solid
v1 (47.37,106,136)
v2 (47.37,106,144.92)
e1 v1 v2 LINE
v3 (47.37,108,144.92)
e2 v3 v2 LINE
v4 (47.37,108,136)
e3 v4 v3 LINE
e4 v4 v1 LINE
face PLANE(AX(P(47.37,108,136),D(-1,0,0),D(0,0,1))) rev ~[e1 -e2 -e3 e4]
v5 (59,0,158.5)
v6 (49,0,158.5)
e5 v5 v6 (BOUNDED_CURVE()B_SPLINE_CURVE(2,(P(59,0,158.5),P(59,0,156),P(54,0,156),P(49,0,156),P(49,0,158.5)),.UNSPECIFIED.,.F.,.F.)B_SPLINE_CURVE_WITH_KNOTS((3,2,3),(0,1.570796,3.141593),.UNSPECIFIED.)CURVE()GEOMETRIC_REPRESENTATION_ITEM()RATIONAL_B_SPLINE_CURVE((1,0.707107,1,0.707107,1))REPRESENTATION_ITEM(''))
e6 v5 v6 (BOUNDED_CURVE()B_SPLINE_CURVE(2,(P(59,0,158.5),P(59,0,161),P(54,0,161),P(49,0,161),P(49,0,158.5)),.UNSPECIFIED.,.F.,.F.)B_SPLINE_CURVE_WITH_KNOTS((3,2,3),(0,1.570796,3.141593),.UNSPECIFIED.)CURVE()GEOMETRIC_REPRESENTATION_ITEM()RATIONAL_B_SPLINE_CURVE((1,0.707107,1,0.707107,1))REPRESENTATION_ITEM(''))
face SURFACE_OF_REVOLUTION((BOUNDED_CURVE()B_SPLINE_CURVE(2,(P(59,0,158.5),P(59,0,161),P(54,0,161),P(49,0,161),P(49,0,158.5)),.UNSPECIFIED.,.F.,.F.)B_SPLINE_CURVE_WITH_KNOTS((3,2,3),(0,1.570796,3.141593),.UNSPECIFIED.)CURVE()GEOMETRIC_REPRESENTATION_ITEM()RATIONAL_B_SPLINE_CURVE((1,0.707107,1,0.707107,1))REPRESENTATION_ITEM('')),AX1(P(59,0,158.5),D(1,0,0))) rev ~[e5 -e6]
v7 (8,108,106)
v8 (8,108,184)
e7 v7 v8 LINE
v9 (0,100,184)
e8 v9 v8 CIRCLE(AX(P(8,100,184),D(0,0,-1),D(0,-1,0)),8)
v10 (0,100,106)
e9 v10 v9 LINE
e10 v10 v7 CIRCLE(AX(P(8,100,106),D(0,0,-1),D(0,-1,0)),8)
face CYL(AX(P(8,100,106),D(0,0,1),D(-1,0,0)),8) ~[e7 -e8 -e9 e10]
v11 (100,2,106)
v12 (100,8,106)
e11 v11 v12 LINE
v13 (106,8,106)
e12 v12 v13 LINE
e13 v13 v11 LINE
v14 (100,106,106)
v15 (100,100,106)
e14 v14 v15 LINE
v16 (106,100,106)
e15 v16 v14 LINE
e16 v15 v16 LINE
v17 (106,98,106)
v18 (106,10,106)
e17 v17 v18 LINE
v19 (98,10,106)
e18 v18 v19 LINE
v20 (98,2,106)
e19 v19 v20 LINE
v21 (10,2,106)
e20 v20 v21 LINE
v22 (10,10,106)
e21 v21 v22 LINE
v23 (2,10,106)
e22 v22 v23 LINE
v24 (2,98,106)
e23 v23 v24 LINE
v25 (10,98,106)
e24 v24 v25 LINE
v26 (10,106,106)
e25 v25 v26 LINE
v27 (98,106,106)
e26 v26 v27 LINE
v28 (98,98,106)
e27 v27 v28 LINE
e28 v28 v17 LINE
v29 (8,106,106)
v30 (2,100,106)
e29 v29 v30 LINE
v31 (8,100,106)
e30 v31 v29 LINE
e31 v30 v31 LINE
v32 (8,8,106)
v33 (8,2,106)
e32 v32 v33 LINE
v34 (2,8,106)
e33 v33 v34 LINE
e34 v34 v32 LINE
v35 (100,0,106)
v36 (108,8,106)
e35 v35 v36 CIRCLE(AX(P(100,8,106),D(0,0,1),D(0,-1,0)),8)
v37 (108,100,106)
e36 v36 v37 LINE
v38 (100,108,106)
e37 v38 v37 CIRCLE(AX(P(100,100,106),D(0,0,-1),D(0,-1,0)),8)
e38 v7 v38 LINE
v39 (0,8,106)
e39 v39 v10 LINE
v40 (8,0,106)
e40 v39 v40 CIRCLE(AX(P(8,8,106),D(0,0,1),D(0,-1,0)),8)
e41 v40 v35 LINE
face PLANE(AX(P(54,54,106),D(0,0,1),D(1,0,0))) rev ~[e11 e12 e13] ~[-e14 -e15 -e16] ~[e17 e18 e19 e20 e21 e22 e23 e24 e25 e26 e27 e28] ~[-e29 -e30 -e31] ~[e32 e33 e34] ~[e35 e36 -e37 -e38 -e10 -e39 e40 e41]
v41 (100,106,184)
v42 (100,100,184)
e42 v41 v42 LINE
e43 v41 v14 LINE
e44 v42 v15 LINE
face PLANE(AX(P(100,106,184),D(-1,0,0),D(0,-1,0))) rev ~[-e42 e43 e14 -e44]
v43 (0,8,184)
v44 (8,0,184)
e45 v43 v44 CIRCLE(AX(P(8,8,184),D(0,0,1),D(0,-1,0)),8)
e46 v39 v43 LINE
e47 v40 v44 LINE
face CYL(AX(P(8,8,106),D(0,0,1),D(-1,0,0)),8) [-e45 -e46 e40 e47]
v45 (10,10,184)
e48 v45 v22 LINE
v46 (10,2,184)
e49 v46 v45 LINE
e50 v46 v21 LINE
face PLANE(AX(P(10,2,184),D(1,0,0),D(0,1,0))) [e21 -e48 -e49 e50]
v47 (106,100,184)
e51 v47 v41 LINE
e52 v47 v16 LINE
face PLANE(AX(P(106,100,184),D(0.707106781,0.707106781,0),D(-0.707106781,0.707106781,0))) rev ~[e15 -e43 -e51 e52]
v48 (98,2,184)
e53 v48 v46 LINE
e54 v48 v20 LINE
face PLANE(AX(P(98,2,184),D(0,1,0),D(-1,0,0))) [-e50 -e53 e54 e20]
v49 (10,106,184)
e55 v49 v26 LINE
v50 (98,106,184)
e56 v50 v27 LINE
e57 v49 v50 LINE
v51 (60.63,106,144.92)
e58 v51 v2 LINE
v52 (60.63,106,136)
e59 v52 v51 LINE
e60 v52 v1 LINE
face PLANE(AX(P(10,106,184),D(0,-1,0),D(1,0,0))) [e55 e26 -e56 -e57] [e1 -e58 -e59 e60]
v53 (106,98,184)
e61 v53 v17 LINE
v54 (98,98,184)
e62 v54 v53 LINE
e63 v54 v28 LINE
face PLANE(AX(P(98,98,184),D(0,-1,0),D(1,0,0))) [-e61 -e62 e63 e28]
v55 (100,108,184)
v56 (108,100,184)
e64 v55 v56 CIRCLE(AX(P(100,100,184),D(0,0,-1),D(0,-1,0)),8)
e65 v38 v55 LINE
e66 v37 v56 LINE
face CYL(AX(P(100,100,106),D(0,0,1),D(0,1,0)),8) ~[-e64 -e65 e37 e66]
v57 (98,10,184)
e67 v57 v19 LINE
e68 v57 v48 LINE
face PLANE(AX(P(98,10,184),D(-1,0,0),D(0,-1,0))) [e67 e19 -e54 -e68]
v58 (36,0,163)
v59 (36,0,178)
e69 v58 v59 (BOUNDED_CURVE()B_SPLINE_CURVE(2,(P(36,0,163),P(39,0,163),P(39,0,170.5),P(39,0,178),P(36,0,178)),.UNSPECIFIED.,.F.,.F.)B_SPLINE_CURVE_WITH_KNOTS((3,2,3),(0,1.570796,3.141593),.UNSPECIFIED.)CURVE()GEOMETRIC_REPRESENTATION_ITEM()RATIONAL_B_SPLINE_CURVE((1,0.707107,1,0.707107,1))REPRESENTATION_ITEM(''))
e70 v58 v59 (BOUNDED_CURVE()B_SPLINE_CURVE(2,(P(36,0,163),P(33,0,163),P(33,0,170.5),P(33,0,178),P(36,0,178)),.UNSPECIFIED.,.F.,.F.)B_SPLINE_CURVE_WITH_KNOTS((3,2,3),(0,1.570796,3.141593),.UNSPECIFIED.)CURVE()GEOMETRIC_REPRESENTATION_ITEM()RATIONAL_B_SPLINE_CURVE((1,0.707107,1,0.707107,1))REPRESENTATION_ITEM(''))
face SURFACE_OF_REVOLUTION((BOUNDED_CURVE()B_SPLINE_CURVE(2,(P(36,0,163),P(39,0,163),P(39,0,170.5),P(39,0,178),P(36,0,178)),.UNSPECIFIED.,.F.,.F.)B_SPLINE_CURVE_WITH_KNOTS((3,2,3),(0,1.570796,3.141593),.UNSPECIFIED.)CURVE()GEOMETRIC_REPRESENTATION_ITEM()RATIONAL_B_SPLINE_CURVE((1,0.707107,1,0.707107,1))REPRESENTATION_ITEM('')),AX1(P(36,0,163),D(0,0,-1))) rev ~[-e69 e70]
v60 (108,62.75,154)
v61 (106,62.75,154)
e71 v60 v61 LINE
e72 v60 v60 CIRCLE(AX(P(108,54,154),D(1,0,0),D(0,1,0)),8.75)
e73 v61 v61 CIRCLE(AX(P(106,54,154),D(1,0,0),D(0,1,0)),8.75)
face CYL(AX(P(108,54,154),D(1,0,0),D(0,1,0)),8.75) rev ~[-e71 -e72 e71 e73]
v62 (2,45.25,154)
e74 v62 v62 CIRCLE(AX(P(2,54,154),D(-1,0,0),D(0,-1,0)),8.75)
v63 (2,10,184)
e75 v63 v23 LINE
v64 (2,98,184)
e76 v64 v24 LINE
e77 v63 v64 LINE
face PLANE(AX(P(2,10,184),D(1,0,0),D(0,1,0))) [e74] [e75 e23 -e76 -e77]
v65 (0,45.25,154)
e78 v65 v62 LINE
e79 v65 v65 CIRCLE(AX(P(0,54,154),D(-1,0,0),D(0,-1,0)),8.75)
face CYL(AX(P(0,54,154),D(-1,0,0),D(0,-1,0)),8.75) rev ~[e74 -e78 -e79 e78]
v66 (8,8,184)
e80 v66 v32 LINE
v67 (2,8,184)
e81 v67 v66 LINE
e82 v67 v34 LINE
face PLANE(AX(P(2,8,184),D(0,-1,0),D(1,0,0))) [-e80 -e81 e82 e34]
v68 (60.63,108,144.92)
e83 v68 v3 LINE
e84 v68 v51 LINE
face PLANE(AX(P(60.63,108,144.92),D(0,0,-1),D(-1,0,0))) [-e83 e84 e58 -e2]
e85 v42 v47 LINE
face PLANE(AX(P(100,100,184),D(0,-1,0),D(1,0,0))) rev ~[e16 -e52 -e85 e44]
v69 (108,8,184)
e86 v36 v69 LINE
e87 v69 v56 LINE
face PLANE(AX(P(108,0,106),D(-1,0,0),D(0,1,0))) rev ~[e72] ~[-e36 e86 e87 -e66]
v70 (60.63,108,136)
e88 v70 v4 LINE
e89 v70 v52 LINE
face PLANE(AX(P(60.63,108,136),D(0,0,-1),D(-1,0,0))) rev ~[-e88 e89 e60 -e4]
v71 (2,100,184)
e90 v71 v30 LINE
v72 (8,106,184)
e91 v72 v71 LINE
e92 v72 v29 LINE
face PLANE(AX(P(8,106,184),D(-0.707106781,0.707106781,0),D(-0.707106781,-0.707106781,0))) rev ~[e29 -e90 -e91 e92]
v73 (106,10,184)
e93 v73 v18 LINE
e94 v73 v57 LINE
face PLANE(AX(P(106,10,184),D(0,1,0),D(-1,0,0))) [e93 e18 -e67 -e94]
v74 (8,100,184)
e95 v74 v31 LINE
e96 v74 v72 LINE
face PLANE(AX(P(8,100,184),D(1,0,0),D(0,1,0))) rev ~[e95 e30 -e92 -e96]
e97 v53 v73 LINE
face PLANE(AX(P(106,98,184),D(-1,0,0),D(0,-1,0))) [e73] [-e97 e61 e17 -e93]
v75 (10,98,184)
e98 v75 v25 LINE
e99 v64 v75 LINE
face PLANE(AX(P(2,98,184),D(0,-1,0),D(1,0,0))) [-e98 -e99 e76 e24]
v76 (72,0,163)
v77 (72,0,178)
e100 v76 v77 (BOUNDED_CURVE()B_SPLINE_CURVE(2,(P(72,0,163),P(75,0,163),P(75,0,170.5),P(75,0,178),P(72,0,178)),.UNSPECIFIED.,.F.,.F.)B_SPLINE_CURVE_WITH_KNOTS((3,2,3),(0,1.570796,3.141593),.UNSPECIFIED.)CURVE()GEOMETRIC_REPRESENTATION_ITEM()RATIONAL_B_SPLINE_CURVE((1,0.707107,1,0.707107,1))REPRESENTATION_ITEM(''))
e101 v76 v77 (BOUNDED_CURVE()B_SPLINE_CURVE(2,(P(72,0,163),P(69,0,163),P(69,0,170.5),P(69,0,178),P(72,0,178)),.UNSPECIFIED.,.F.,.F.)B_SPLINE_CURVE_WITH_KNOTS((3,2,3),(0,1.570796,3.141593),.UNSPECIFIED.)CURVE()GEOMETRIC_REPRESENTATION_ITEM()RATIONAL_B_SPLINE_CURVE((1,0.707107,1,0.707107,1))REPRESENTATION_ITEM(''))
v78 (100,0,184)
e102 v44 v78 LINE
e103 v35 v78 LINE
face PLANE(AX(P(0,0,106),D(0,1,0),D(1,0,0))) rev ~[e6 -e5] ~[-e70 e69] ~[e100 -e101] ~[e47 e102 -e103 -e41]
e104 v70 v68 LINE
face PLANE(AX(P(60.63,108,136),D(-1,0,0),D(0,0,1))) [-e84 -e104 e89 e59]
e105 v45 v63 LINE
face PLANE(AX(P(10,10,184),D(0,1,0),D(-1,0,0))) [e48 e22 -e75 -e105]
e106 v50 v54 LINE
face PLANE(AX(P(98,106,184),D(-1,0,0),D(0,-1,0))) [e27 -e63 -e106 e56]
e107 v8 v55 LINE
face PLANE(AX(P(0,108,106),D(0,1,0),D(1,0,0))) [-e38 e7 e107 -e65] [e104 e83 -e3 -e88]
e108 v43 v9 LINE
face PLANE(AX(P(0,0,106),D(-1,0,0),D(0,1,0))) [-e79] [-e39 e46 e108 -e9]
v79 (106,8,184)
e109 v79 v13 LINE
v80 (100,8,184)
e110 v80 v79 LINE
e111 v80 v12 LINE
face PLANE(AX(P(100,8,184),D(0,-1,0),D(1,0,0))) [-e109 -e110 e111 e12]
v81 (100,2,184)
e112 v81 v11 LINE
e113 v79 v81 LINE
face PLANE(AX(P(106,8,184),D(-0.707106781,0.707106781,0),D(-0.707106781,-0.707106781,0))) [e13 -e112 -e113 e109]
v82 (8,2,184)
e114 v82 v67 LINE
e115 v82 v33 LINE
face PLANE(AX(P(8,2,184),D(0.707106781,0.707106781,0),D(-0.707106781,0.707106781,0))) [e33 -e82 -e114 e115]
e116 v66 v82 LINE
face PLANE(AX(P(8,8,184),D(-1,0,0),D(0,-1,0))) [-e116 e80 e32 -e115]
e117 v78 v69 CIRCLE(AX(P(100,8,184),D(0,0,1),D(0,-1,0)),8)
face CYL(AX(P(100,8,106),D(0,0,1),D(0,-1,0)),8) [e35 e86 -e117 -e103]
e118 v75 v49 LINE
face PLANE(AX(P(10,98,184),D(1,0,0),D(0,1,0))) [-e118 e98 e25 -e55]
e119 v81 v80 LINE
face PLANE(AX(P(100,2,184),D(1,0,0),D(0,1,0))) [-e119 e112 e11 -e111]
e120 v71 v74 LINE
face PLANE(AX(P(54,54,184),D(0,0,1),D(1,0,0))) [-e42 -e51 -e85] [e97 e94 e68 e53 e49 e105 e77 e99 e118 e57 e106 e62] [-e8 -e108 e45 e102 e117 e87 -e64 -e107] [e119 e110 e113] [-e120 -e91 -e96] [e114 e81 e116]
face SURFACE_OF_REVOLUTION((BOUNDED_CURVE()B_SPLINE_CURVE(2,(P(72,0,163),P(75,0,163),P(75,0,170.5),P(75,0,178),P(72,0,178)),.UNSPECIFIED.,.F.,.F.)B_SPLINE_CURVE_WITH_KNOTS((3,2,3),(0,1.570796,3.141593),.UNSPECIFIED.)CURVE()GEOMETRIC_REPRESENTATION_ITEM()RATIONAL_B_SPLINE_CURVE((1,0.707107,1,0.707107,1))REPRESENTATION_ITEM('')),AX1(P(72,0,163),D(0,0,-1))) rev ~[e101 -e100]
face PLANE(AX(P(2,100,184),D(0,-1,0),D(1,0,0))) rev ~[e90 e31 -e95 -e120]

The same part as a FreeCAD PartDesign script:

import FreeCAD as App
import Part
import Sketcher
from FreeCAD import Vector


def edges_at(feature, points):
    """Names of the edges that pass closest to the given points."""
    edges = feature.Shape.Edges
    near = lambda p: min(range(len(edges)), key=lambda i: edges[i].distToShape(Part.Vertex(*p))[0])
    return sorted({f"Edge{near(p) + 1}" for p in points})


def add_polygon(sketch, points):
    """Adds a closed chain of lines whose ends are joined by coincident constraints."""
    first, n = sketch.GeometryCount, len(points)
    for a, b in zip(points, points[1:] + points[:1]):
        sketch.addGeometry(Part.LineSegment(App.Vector(*a, 0), App.Vector(*b, 0)), False)
    for i in range(n):
        sketch.addConstraint(Sketcher.Constraint("Coincident", first + i, 2, first + (i + 1) % n, 1))

doc = App.newDocument("Part")
body = doc.addObject("PartDesign::Body", "Body")

# Sketch on XY plane
sketch1 = body.newObject("Sketcher::SketchObject", "Sketch")
sketch1.AttachmentSupport = (doc.getObject("XY_Plane"), [""])
sketch1.MapMode = "FlatFace"
add_polygon(sketch1, [(0, 108), (0, 0), (108, 0), (108, 108)])  # lines 0-3
sketch1.addConstraint([
    Sketcher.Constraint("Vertical", 0),
    Sketcher.Constraint("Horizontal", 1),
    Sketcher.Constraint("Vertical", 2),
    Sketcher.Constraint("Horizontal", 3),
    Sketcher.Constraint("Coincident", 0, 2, -1, 1),
    Sketcher.Constraint("Equal", 3, 0),
    Sketcher.Constraint("DistanceX", 1, 1, 1, 2, 108.0),
])
pad1 = body.newObject("PartDesign::Pad", "Pad")
pad1.Profile = sketch1
pad1.Length = 78

# Sketch on XY plane
sketch2 = body.newObject("Sketcher::SketchObject", "Sketch001")
sketch2.AttachmentSupport = (doc.getObject("XY_Plane"), [""])
sketch2.MapMode = "FlatFace"
sketch2.AttachmentOffset = App.Placement(Vector(0, 0, 78), App.Rotation())
add_polygon(sketch2, [(10, 98), (2, 98), (2, 10), (10, 10), (10, 2), (98, 2), (98, 10), (106, 10), (106, 98), (98, 98), (98, 106), (10, 106)])  # lines 0-11
sketch2.addConstraint([
    Sketcher.Constraint("Horizontal", 0),
    Sketcher.Constraint("Vertical", 1),
    Sketcher.Constraint("Horizontal", 2),
    Sketcher.Constraint("Vertical", 3),
    Sketcher.Constraint("Horizontal", 4),
    Sketcher.Constraint("Vertical", 5),
    Sketcher.Constraint("Horizontal", 6),
    Sketcher.Constraint("Vertical", 7),
    Sketcher.Constraint("Horizontal", 8),
    Sketcher.Constraint("Vertical", 9),
    Sketcher.Constraint("Horizontal", 10),
    Sketcher.Constraint("Vertical", 11),
    Sketcher.Constraint("Horizontal", 2, 2, 5, 2),
    Sketcher.Constraint("Horizontal", 0, 2, 7, 2),
    Sketcher.Constraint("Vertical", 5, 2, 8, 2),
    Sketcher.Constraint("Vertical", 3, 2, 10, 2),
    Sketcher.Constraint("Equal", 2, 6),
    Sketcher.Constraint("Equal", 10, 1),
    Sketcher.Constraint("Equal", 8, 3),
    Sketcher.Constraint("Equal", 5, 9),
    Sketcher.Constraint("DistanceX", 0, 2, 0, 1, 8.0),
    Sketcher.Constraint("DistanceX", 4, 1, 4, 2, 88.0),
    Sketcher.Constraint("DistanceX", -1, 1, 0, 2, 2.0),
    Sketcher.Constraint("DistanceY", -1, 1, 0, 2, 98.0),
])
pocket1 = body.newObject("PartDesign::Pocket", "Pocket")
pocket1.Profile = sketch2
pocket1.Type = "ThroughAll"
doc.recompute()

fillet = body.newObject("PartDesign::Fillet", "Fillet")
fillet.Base = (pocket1, edges_at(pocket1, [
    (0, 108, 39),
    (108, 108, 39),
    (108, 0, 39),
    (0, 0, 39),
]))
fillet.Radius = 8

# Sketch on XY plane
sketch3 = body.newObject("Sketcher::SketchObject", "Sketch002")
sketch3.AttachmentSupport = (doc.getObject("XY_Plane"), [""])
sketch3.MapMode = "FlatFace"
sketch3.AttachmentOffset = App.Placement(Vector(0, 0, 78), App.Rotation())
add_polygon(sketch3, [(2, 100), (8, 100), (8, 106)])  # lines 0-2
add_polygon(sketch3, [(100, 106), (100, 100), (106, 100)])  # lines 3-5
add_polygon(sketch3, [(100, 8), (100, 2), (106, 8)])  # lines 6-8
add_polygon(sketch3, [(8, 8), (2, 8), (8, 2)])  # lines 9-11
sketch3.addConstraint([
    Sketcher.Constraint("Horizontal", 0),
    Sketcher.Constraint("Vertical", 1),
    Sketcher.Constraint("Vertical", 3),
    Sketcher.Constraint("Horizontal", 4),
    Sketcher.Constraint("Vertical", 6),
    Sketcher.Constraint("Horizontal", 8),
    Sketcher.Constraint("Horizontal", 9),
    Sketcher.Constraint("Vertical", 11),
    Sketcher.Constraint("Perpendicular", 2, 5),
    Sketcher.Constraint("Perpendicular", 5, 7),
    Sketcher.Constraint("Perpendicular", 7, 10),
    Sketcher.Constraint("Horizontal", 2, 2, 3, 2),
    Sketcher.Constraint("Horizontal", 1, 2, 5, 2),
    Sketcher.Constraint("Horizontal", 8, 2, 9, 2),
    Sketcher.Constraint("Horizontal", 6, 2, 10, 2),
    Sketcher.Constraint("Vertical", 5, 2, 6, 2),
    Sketcher.Constraint("Vertical", 4, 2, 7, 2),
    Sketcher.Constraint("Vertical", 2, 2, 9, 2),
    Sketcher.Constraint("Vertical", 1, 2, 10, 2),
    Sketcher.Constraint("DistanceX", 0, 1, 0, 2, 6.0),
    Sketcher.Constraint("DistanceX", -1, 1, 0, 2, 8.0),
    Sketcher.Constraint("DistanceY", -1, 1, 0, 2, 100.0),
    Sketcher.Constraint("DistanceX", -1, 1, 3, 2, 100.0),
    Sketcher.Constraint("DistanceY", -1, 1, 6, 2, 2.0),
])
pocket2 = body.newObject("PartDesign::Pocket", "Pocket001")
pocket2.Profile = sketch3
pocket2.Type = "ThroughAll"

# Sketch on XZ plane
sketch4 = body.newObject("Sketcher::SketchObject", "Sketch003")
sketch4.AttachmentSupport = (doc.getObject("XZ_Plane"), [""])
sketch4.MapMode = "FlatFace"
sketch4.addGeometry([
    Part.BSplineCurve([Vector(36, 57, 0), Vector(39, 57, 0), Vector(39, 64.5, 0), Vector(39, 72, 0), Vector(36, 72, 0)], [3, 2, 3], [0, 1.570796, 3.141593], False, 2, [1, 0.707107, 1, 0.707107, 1], False),
    Part.LineSegment(Vector(36, 72, 0), Vector(36, 57, 0)),
], False)
sketch4.addGeometry(Part.LineSegment(Vector(36, 57, 0), Vector(36, 72, 0)), True)  # axis
sketch4.addConstraint([
    Sketcher.Constraint("Block", 0),
    Sketcher.Constraint("Coincident", 0, 1, 1, 2),
    Sketcher.Constraint("Coincident", 1, 1, 0, 2),
    Sketcher.Constraint("Vertical", 2),
    Sketcher.Constraint("Coincident", 2, 2, 1, 1),
    Sketcher.Constraint("Equal", 1, 2),
])
revolution = body.newObject("PartDesign::Revolution", "Revolution")
revolution.Profile = sketch4
revolution.ReferenceAxis = (sketch4, ["Axis0"])
revolution.Angle = 180
revolution.Reversed = True

# Sketch on XZ plane
sketch5 = body.newObject("Sketcher::SketchObject", "Sketch004")
sketch5.AttachmentSupport = (doc.getObject("XZ_Plane"), [""])
sketch5.MapMode = "FlatFace"
sketch5.addGeometry([
    Part.BSplineCurve([Vector(72, 57, 0), Vector(75, 57, 0), Vector(75, 64.5, 0), Vector(75, 72, 0), Vector(72, 72, 0)], [3, 2, 3], [0, 1.570796, 3.141593], False, 2, [1, 0.707107, 1, 0.707107, 1], False),
    Part.LineSegment(Vector(72, 72, 0), Vector(72, 57, 0)),
], False)
sketch5.addGeometry(Part.LineSegment(Vector(72, 57, 0), Vector(72, 72, 0)), True)  # axis
sketch5.addConstraint([
    Sketcher.Constraint("Block", 0),
    Sketcher.Constraint("Coincident", 0, 1, 1, 2),
    Sketcher.Constraint("Coincident", 1, 1, 0, 2),
    Sketcher.Constraint("Vertical", 2),
    Sketcher.Constraint("Coincident", 2, 2, 1, 1),
    Sketcher.Constraint("Equal", 1, 2),
])
revolution2 = body.newObject("PartDesign::Revolution", "Revolution001")
revolution2.Profile = sketch5
revolution2.ReferenceAxis = (sketch5, ["Axis0"])
revolution2.Angle = 180
revolution2.Reversed = True

# Sketch on XZ plane
sketch6 = body.newObject("Sketcher::SketchObject", "Sketch005")
sketch6.AttachmentSupport = (doc.getObject("XZ_Plane"), [""])
sketch6.MapMode = "FlatFace"
sketch6.addGeometry([
    Part.BSplineCurve([Vector(59, 52.5, 0), Vector(59, 55, 0), Vector(54, 55, 0), Vector(49, 55, 0), Vector(49, 52.5, 0)], [3, 2, 3], [0, 1.570796, 3.141593], False, 2, [1, 0.707107, 1, 0.707107, 1], False),
    Part.LineSegment(Vector(49, 52.5, 0), Vector(59, 52.5, 0)),
], False)
sketch6.addGeometry(Part.LineSegment(Vector(59, 52.5, 0), Vector(49, 52.5, 0)), True)  # axis
sketch6.addConstraint([
    Sketcher.Constraint("Block", 0),
    Sketcher.Constraint("Coincident", 0, 1, 1, 2),
    Sketcher.Constraint("Coincident", 1, 1, 0, 2),
    Sketcher.Constraint("Horizontal", 2),
    Sketcher.Constraint("Coincident", 2, 2, 1, 1),
    Sketcher.Constraint("DistanceX", 2, 2, 2, 1, 10.0),
])
revolution3 = body.newObject("PartDesign::Revolution", "Revolution002")
revolution3.Profile = sketch6
revolution3.ReferenceAxis = (sketch6, ["Axis0"])
revolution3.Angle = 180
revolution3.Reversed = True

# Sketch on XZ plane
sketch7 = body.newObject("Sketcher::SketchObject", "Sketch006")
sketch7.AttachmentSupport = (doc.getObject("XZ_Plane"), [""])
sketch7.MapMode = "FlatFace"
sketch7.AttachmentOffset = App.Placement(Vector(0, 0, -108), App.Rotation())
add_polygon(sketch7, [(61, 39), (61, 30), (47, 30), (47, 39)])  # lines 0-3
sketch7.addConstraint([
    Sketcher.Constraint("Vertical", 0),
    Sketcher.Constraint("Horizontal", 1),
    Sketcher.Constraint("Vertical", 2),
    Sketcher.Constraint("Horizontal", 3),
    Sketcher.Constraint("DistanceY", -1, 1, 0, 2, 30.0),
    Sketcher.Constraint("DistanceX", 1, 2, 1, 1, 13.26),
    Sketcher.Constraint("DistanceY", 0, 2, 0, 1, 8.92),
    Sketcher.Constraint("DistanceX", -1, 1, 0, 2, 60.63),
])
pocket3 = body.newObject("PartDesign::Pocket", "Pocket002")
pocket3.Profile = sketch7
pocket3.Length = 2
pocket3.Reversed = True

# Sketch on YZ plane
sketch8 = body.newObject("Sketcher::SketchObject", "Sketch007")
sketch8.AttachmentSupport = (doc.getObject("YZ_Plane"), [""])
sketch8.MapMode = "FlatFace"
sketch8.AttachmentOffset = App.Placement(Vector(0, 0, 108), App.Rotation())
sketch8.addGeometry(Part.Circle(Vector(54, 48, 0), Vector(0, 0, 1), 9), False)
sketch8.addConstraint([
    Sketcher.Constraint("Diameter", 0, 17.5),
    Sketcher.Constraint("DistanceX", -1, 1, 0, 3, 54.0),
    Sketcher.Constraint("DistanceY", -1, 1, 0, 3, 48.0),
])
pocket4 = body.newObject("PartDesign::Pocket", "Pocket003")
pocket4.Profile = sketch8
pocket4.Length = 2

# Sketch on YZ plane
sketch9 = body.newObject("Sketcher::SketchObject", "Sketch008")
sketch9.AttachmentSupport = (doc.getObject("YZ_Plane"), [""])
sketch9.MapMode = "FlatFace"
sketch9.addGeometry(Part.Circle(Vector(54, 48, 0), Vector(0, 0, 1), 9), False)
sketch9.addConstraint([
    Sketcher.Constraint("Diameter", 0, 17.5),
    Sketcher.Constraint("DistanceX", -1, 1, 0, 3, 54.0),
    Sketcher.Constraint("DistanceY", -1, 1, 0, 3, 48.0),
])
pocket5 = body.newObject("PartDesign::Pocket", "Pocket004")
pocket5.Profile = sketch9
pocket5.Length = 2
pocket5.Reversed = True
body2 = doc.addObject("PartDesign::Body", "Body001")
doc.recompute()

body.Placement = App.Placement(Vector(0, 0, 106), App.Rotation(Vector(0, 0, 1), 0))
boolean = body2.newObject("PartDesign::Boolean", "Boolean")
boolean.Type = "Fuse"
boolean.addObjects([body])

doc.recompute()
